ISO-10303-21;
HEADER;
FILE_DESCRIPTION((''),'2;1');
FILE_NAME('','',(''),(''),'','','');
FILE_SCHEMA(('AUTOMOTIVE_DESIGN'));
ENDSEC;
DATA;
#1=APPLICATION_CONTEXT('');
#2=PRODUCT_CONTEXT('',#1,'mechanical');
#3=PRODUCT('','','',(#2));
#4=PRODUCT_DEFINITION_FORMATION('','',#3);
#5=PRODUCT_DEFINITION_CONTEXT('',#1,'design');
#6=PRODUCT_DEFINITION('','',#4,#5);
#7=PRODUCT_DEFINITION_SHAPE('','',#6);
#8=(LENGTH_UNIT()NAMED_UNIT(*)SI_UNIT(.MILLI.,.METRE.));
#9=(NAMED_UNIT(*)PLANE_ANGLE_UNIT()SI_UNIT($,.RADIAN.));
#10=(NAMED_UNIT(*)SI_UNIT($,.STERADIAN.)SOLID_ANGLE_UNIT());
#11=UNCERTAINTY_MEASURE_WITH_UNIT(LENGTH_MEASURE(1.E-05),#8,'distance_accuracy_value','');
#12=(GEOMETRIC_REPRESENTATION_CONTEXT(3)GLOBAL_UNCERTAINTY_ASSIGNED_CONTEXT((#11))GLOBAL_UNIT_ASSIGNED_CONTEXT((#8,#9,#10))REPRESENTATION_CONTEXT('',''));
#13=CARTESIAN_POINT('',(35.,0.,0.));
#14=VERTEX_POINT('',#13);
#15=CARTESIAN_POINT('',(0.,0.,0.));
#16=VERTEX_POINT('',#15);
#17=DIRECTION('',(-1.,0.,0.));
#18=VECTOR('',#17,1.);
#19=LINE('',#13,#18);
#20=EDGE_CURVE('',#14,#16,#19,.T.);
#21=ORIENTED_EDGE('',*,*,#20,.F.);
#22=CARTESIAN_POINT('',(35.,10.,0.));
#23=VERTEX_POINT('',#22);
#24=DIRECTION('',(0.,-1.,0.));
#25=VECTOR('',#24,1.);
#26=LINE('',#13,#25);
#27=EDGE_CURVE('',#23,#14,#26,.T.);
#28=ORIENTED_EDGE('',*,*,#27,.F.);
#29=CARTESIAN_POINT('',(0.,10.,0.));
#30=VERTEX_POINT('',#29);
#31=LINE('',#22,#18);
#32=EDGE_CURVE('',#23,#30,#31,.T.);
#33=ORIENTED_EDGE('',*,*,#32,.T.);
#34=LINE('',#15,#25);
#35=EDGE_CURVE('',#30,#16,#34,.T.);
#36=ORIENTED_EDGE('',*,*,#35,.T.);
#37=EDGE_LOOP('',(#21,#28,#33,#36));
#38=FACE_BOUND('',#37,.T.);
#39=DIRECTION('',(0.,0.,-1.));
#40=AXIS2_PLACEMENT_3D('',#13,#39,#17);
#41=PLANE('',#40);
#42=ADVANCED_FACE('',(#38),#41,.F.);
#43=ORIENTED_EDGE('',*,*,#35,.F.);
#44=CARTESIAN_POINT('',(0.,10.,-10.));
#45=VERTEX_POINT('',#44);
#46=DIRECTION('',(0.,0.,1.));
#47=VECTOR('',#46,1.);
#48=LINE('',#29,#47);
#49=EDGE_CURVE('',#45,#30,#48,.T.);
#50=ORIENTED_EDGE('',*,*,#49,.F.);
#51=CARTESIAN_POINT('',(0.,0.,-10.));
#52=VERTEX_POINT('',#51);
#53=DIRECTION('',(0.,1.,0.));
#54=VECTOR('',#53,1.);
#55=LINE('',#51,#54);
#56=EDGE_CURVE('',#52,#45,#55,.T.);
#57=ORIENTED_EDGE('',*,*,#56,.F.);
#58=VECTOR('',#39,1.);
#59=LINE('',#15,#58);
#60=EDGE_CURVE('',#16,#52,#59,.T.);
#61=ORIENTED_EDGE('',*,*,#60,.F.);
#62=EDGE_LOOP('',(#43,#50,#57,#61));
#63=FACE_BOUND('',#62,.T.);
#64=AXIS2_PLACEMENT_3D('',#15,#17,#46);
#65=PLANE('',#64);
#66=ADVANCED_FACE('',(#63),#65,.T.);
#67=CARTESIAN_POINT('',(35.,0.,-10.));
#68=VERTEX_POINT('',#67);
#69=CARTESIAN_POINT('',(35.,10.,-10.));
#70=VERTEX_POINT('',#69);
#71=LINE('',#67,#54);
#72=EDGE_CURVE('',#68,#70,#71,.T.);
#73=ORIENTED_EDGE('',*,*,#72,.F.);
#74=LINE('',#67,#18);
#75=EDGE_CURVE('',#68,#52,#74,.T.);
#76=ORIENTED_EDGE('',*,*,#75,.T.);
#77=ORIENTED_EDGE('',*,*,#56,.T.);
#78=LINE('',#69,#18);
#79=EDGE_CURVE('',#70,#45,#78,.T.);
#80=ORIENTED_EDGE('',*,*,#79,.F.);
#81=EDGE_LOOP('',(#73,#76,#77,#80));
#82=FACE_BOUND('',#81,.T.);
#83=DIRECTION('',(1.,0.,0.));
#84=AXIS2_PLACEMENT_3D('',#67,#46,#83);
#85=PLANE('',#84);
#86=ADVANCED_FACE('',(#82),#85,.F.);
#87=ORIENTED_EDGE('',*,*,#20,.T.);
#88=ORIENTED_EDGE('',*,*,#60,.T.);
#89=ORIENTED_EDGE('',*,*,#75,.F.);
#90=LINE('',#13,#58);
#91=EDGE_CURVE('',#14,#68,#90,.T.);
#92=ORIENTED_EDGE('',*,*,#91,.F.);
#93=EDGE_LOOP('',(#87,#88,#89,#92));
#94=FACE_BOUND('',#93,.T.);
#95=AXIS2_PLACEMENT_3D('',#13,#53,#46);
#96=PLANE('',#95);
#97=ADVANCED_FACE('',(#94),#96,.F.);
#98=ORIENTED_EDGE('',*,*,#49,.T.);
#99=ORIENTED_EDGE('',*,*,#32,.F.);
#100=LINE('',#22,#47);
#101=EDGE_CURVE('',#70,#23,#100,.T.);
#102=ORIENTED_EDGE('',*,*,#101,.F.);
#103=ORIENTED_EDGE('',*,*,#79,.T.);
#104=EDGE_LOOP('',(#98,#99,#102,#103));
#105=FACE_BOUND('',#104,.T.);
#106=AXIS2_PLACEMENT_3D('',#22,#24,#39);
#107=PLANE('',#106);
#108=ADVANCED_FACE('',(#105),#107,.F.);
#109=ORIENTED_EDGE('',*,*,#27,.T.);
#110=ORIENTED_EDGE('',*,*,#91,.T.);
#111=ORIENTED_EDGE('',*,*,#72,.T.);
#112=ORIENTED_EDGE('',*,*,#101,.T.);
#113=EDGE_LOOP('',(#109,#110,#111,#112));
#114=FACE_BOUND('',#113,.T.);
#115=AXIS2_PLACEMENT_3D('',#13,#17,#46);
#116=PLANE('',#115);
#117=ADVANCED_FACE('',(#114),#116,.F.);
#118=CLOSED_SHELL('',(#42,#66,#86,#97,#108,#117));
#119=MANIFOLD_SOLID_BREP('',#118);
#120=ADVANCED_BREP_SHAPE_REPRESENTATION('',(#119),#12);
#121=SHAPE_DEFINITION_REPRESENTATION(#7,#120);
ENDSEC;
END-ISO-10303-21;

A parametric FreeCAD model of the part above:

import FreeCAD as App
import Part
import Sketcher
from FreeCAD import Vector


def add_polygon(sketch, points):
    """Adds a closed chain of lines whose ends are joined by coincident constraints."""
    first, n = sketch.GeometryCount, len(points)
    for a, b in zip(points, points[1:] + points[:1]):
        sketch.addGeometry(Part.LineSegment(App.Vector(*a, 0), App.Vector(*b, 0)), False)
    for i in range(n):
        sketch.addConstraint(Sketcher.Constraint("Coincident", first + i, 2, first + (i + 1) % n, 1))

doc = App.newDocument("Part")
body = doc.addObject("PartDesign::Body", "Body")

# Sketch on YZ plane
sketch1 = body.newObject("Sketcher::SketchObject", "Sketch")
sketch1.AttachmentSupport = (doc.getObject("YZ_Plane"), [""])
sketch1.MapMode = "FlatFace"
add_polygon(sketch1, [(10, 0), (0, 0), (0, -10), (10, -10)])  # lines 0-3
sketch1.addConstraint(Sketcher.Constraint("Horizontal", 0))
sketch1.addConstraint(Sketcher.Constraint("Vertical", 1))
sketch1.addConstraint(Sketcher.Constraint("Horizontal", 2))
sketch1.addConstraint(Sketcher.Constraint("Vertical", 3))
sketch1.addConstraint(Sketcher.Constraint("Coincident", 0, 2, -1, 1))
sketch1.addConstraint(Sketcher.Constraint("Equal", 2, 1))
sketch1.addConstraint(Sketcher.Constraint("DistanceX", 0, 2, 0, 1, 10.0))
pad1 = body.newObject("PartDesign::Pad", "Pad")
pad1.Profile = sketch1
pad1.Length = 35

doc.recompute()
